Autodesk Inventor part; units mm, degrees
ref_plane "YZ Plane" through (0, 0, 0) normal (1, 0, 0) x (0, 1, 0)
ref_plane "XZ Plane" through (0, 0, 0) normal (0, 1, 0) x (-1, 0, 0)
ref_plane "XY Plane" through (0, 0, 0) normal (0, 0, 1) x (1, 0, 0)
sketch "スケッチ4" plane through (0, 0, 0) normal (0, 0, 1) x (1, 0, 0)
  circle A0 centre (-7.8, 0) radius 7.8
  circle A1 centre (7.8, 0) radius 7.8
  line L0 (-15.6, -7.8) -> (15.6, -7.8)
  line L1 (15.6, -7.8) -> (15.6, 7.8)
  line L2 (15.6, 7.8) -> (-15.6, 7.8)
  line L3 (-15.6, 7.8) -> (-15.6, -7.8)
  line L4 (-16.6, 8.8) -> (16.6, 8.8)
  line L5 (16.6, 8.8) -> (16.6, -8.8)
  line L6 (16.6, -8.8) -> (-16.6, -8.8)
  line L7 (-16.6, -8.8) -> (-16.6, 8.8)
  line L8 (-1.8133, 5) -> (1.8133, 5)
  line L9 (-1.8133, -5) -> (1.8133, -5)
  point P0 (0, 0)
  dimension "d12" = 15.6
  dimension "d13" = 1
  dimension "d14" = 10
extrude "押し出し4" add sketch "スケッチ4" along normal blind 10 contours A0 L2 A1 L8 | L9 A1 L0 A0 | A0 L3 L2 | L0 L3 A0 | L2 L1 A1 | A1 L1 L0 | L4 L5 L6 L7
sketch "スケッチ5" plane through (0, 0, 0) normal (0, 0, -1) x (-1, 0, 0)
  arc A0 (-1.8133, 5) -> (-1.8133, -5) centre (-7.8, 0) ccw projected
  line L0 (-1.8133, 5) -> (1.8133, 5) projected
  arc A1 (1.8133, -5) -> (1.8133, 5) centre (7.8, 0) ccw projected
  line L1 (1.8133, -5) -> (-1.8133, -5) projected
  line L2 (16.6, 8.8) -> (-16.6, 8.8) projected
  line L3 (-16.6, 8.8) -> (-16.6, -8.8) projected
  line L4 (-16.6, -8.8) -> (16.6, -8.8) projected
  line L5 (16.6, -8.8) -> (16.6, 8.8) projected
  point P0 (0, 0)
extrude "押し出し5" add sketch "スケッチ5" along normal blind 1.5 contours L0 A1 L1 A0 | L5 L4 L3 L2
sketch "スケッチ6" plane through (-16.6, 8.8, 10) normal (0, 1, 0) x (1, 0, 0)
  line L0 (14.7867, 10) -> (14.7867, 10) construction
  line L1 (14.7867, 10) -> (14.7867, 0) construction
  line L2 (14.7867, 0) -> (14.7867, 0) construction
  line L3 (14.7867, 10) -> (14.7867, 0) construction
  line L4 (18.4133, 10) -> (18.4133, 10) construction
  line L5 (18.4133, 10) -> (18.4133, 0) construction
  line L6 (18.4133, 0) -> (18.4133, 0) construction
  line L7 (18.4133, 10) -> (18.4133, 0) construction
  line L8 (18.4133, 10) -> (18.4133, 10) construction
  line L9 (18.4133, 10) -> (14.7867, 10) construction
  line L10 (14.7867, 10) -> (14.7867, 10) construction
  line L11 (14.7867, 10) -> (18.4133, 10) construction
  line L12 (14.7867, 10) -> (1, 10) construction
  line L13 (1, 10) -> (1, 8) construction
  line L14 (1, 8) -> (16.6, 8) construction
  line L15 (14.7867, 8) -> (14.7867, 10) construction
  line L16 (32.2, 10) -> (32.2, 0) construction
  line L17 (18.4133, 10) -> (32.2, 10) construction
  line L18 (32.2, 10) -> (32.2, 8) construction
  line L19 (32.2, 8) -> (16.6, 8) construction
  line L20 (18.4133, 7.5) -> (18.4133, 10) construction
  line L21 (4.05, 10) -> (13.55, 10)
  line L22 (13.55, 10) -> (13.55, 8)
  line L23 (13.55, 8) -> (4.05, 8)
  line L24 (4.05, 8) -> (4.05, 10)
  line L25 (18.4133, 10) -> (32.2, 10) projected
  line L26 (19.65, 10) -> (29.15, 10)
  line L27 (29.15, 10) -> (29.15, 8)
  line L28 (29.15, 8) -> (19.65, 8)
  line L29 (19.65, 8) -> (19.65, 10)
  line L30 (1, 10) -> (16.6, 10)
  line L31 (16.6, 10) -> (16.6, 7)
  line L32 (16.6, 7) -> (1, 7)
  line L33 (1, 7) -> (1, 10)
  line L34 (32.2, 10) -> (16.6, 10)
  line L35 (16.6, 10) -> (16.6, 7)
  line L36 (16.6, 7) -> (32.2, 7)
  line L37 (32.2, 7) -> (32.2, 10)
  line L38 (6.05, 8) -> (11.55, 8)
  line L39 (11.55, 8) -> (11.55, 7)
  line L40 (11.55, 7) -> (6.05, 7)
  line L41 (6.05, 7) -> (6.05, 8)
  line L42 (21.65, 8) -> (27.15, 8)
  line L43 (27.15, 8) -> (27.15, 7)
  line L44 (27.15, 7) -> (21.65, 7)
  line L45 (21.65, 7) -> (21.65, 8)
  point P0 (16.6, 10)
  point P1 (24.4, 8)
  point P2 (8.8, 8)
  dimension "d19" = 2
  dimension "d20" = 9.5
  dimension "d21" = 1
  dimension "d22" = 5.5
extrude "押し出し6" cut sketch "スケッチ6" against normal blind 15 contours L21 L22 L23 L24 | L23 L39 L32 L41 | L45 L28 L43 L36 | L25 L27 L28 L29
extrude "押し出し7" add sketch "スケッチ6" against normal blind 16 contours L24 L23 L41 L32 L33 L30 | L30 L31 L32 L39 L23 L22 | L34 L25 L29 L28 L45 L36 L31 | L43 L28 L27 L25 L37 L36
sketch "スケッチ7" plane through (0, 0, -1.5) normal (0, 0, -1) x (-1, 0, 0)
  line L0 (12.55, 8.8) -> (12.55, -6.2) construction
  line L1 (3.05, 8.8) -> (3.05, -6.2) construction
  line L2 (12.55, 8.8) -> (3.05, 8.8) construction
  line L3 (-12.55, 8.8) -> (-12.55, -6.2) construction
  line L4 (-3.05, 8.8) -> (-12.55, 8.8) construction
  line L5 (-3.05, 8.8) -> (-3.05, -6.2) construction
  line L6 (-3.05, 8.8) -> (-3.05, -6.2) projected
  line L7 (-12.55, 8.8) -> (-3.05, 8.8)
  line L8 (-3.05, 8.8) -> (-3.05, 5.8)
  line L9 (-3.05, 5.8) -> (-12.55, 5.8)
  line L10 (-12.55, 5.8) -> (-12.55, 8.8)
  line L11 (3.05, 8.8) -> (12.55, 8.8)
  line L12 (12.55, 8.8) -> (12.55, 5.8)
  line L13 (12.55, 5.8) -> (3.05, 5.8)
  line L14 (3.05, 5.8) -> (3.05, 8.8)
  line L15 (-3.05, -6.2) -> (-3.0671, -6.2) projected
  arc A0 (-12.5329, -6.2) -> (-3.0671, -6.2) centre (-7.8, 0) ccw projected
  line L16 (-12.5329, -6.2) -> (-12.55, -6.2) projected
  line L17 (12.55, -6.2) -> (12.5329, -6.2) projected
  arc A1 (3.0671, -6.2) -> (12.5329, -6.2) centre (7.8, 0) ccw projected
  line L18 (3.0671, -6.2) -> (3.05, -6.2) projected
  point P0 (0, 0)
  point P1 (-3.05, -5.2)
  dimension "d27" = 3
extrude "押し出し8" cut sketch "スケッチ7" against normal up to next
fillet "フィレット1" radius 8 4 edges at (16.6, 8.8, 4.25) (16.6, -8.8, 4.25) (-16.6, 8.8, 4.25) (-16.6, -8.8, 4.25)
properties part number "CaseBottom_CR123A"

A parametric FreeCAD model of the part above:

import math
import FreeCAD as App
import Part
import Sketcher
from FreeCAD import Vector


def edges_at(feature, points):
    """Names of the edges that pass closest to the given points."""
    edges = feature.Shape.Edges
    near = lambda p: min(range(len(edges)), key=lambda i: edges[i].distToShape(Part.Vertex(*p))[0])
    return sorted({f"Edge{near(p) + 1}" for p in points})


def add_polygon(sketch, points):
    """Adds a closed chain of lines whose ends are joined by coincident constraints."""
    first, n = sketch.GeometryCount, len(points)
    for a, b in zip(points, points[1:] + points[:1]):
        sketch.addGeometry(Part.LineSegment(App.Vector(*a, 0), App.Vector(*b, 0)), False)
    for i in range(n):
        sketch.addConstraint(Sketcher.Constraint("Coincident", first + i, 2, first + (i + 1) % n, 1))

doc = App.newDocument("Part")
body = doc.addObject("PartDesign::Body", "Body")

sketch1 = body.newObject("Sketcher::SketchObject", "Sketch")
sketch1.AttachmentSupport = (doc.getObject("XY_Plane"), [""])
sketch1.MapMode = "FlatFace"
add_polygon(sketch1, [(16.6, 8.8), (-16.6, 8.8), (-16.6, -8.8), (16.6, -8.8)])
sketch1.addGeometry(Part.LineSegment(Vector(-1.8, 5, 0), Vector(1.8, 5, 0)), False)
sketch1.addGeometry(Part.ArcOfCircle(Part.Circle(Vector(7.8, 0, 0), Vector(0, 0, 1), 7.8), math.radians(-140), math.radians(140)), False)
sketch1.addGeometry(Part.LineSegment(Vector(1.8, -5, 0), Vector(-1.8, -5, 0)), False)
sketch1.addGeometry(Part.ArcOfCircle(Part.Circle(Vector(-7.8, 0, 0), Vector(0, 0, 1), 7.8), math.radians(40), math.radians(320)), False)
sketch1.addConstraint([
    Sketcher.Constraint("Coincident", 4, 2, 5, 2),
    Sketcher.Constraint("Coincident", 5, 1, 6, 1),
    Sketcher.Constraint("Coincident", 6, 2, 7, 2),
    Sketcher.Constraint("Coincident", 7, 1, 4, 1),
    Sketcher.Constraint("Horizontal", 0),
    Sketcher.Constraint("Vertical", 1),
    Sketcher.Constraint("Horizontal", 2),
    Sketcher.Constraint("Vertical", 3),
    Sketcher.Constraint("Horizontal", 4),
    Sketcher.Constraint("Horizontal", 6),
    Sketcher.Constraint("Equal", 5, 7),
    Sketcher.Constraint("Symmetric", 5, 3, 7, 3, -1, 1),
    Sketcher.Constraint("Symmetric", 0, 2, 2, 2, -1, 1),
    Sketcher.Constraint("Symmetric", 4, 2, 5, 1, -1),
    Sketcher.Constraint("Radius", 5, 7.8),
    Sketcher.Constraint("DistanceY", 5, 1, 4, 2, 10.0),
    Sketcher.Constraint("DistanceX", 7, 3, 5, 3, 15.6),
    Sketcher.Constraint("DistanceX", 0, 2, 0, 1, 33.2),
    Sketcher.Constraint("DistanceY", 1, 2, 1, 1, 17.6),
])
pad1 = body.newObject("PartDesign::Pad", "Pad")
pad1.Profile = sketch1
pad1.Length = 10

sketch2 = body.newObject("Sketcher::SketchObject", "Sketch001")
sketch2.AttachmentSupport = (doc.getObject("XY_Plane"), [""])
sketch2.MapMode = "FlatFace"
add_polygon(sketch2, [(-17, -9), (-17, 9), (17, 9), (17, -9)])
sketch2.addConstraint([
    Sketcher.Constraint("Vertical", 0),
    Sketcher.Constraint("Horizontal", 1),
    Sketcher.Constraint("Vertical", 2),
    Sketcher.Constraint("Horizontal", 3),
    Sketcher.Constraint("Symmetric", 0, 2, 2, 2, -1, 1),
    Sketcher.Constraint("DistanceX", 1, 1, 1, 2, 33.2),
    Sketcher.Constraint("DistanceY", 0, 1, 0, 2, 17.6),
])
pad2 = body.newObject("PartDesign::Pad", "Pad001")
pad2.Profile = sketch2
pad2.Length = 1.5
pad2.Reversed = True

sketch3 = body.newObject("Sketcher::SketchObject", "Sketch002")
sketch3.AttachmentSupport = (doc.getObject("XZ_Plane"), [""])
sketch3.MapMode = "FlatFace"
sketch3.AttachmentOffset = App.Placement(Vector(0, 0, -8.8), App.Rotation())
add_polygon(sketch3, [(-3, 0), (-12.6, 0), (-12.6, 2), (-10.6, 2), (-10.6, 3), (-5, 3), (-5, 2), (-3, 2)])
add_polygon(sketch3, [(5, 2), (5, 3), (10.6, 3), (10.6, 2), (12.6, 2), (12.6, 0), (3, 0), (3, 2)])
sketch3.addConstraint([
    Sketcher.Constraint("Horizontal", 0),
    Sketcher.Constraint("Vertical", 1),
    Sketcher.Constraint("Horizontal", 2),
    Sketcher.Constraint("Vertical", 3),
    Sketcher.Constraint("Horizontal", 4),
    Sketcher.Constraint("Vertical", 5),
    Sketcher.Constraint("Horizontal", 6),
    Sketcher.Constraint("Vertical", 7),
    Sketcher.Constraint("Vertical", 8),
    Sketcher.Constraint("Horizontal", 9),
    Sketcher.Constraint("Vertical", 10),
    Sketcher.Constraint("Horizontal", 11),
    Sketcher.Constraint("Vertical", 12),
    Sketcher.Constraint("Horizontal", 13),
    Sketcher.Constraint("Vertical", 14),
    Sketcher.Constraint("Horizontal", 15),
    Sketcher.Constraint("Symmetric", 0, 2, 12, 2, -1, 1),
    Sketcher.Constraint("Symmetric", 4, 2, 8, 2, -2),
    Sketcher.Constraint("Symmetric", 2, 2, 10, 2, -2),
    Sketcher.Constraint("Symmetric", 7, 2, 13, 2, -2),
    Sketcher.Constraint("Horizontal", 2, 2, 5, 2),
    Sketcher.Constraint("Horizontal", 11, 2, 14, 2),
    Sketcher.Constraint("Equal", 2, 6),
    Sketcher.Constraint("Equal", 15, 1),
    Sketcher.Constraint("DistanceX", 2, 1, 2, 2, 2.0),
    Sketcher.Constraint("DistanceY", 3, 1, 3, 2, 1.0),
    Sketcher.Constraint("DistanceX", 0, 2, 0, 1, 9.5),
    Sketcher.Constraint("DistanceX", 6, 2, 8, 2, 8.1),
])
pocket1 = body.newObject("PartDesign::Pocket", "Pocket")
pocket1.Profile = sketch3
pocket1.Length = 15
pocket1.Reversed = True

sketch4 = body.newObject("Sketcher::SketchObject", "Sketch003")
sketch4.AttachmentSupport = (doc.getObject("XZ_Plane"), [""])
sketch4.MapMode = "FlatFace"
sketch4.AttachmentOffset = App.Placement(Vector(0, 0, -8.8), App.Rotation())
add_polygon(sketch4, [(-12.6, 2), (-12.6, 0), (-15.6, 0), (-15.6, 3), (-10.6, 3), (-10.6, 2)])
add_polygon(sketch4, [(-3, 0), (-3, 2), (-5, 2), (-5, 3), (5, 3), (5, 2), (3, 2), (3, 0)])
add_polygon(sketch4, [(10.6, 2), (10.6, 3), (15.6, 3), (15.6, 0), (12.6, 0), (12.6, 2)])
sketch4.addConstraint([
    Sketcher.Constraint("Vertical", 0),
    Sketcher.Constraint("Horizontal", 1),
    Sketcher.Constraint("Vertical", 2),
    Sketcher.Constraint("Horizontal", 3),
    Sketcher.Constraint("Vertical", 4),
    Sketcher.Constraint("Horizontal", 5),
    Sketcher.Constraint("Vertical", 6),
    Sketcher.Constraint("Horizontal", 7),
    Sketcher.Constraint("Vertical", 8),
    Sketcher.Constraint("Horizontal", 9),
    Sketcher.Constraint("Vertical", 10),
    Sketcher.Constraint("Horizontal", 11),
    Sketcher.Constraint("Vertical", 12),
    Sketcher.Constraint("Horizontal", 13),
    Sketcher.Constraint("Vertical", 14),
    Sketcher.Constraint("Horizontal", 15),
    Sketcher.Constraint("Vertical", 16),
    Sketcher.Constraint("Horizontal", 17),
    Sketcher.Constraint("Vertical", 18),
    Sketcher.Constraint("Horizontal", 19),
    Sketcher.Constraint("Symmetric", 12, 2, 13, 2, -1, 1),
    Sketcher.Constraint("Symmetric", 1, 2, 16, 2, -1, 1),
    Sketcher.Constraint("Symmetric", 7, 2, 10, 2, -2),
    Sketcher.Constraint("Symmetric", 3, 2, 14, 2, -2),
    Sketcher.Constraint("Symmetric", 0, 2, 17, 2, -2),
    Sketcher.Constraint("Horizontal", 5, 2, 6, 2),
    Sketcher.Constraint("Horizontal", 3, 2, 8, 2),
    Sketcher.Constraint("Horizontal", 11, 2, 18, 2),
    Sketcher.Constraint("Equal", 5, 7),
    Sketcher.Constraint("Equal", 19, 0),
    Sketcher.Constraint("DistanceX", 5, 2, 5, 1, 2.0),
    Sketcher.Constraint("DistanceY", 4, 2, 4, 1, 1.0),
    Sketcher.Constraint("DistanceX", 5, 2, 6, 2, 9.5),
    Sketcher.Constraint("DistanceX", 9, 1, 9, 2, 10.1),
    Sketcher.Constraint("DistanceX", 1, 2, 1, 1, 3.05),
])
pad3 = body.newObject("PartDesign::Pad", "Pad002")
pad3.Profile = sketch4
pad3.Length = 16

sketch5 = body.newObject("Sketcher::SketchObject", "Sketch004")
sketch5.AttachmentSupport = (doc.getObject("XY_Plane"), [""])
sketch5.MapMode = "FlatFace"
sketch5.AttachmentOffset = App.Placement(Vector(0, 0, -1.5), App.Rotation())
add_polygon(sketch5, [(3, 5.8), (3, 8.8), (12.6, 8.8), (12.6, 5.8)])
add_polygon(sketch5, [(-12.6, 8.8), (-3, 8.8), (-3, 5.8), (-12.6, 5.8)])
sketch5.addConstraint([
    Sketcher.Constraint("Vertical", 0),
    Sketcher.Constraint("Horizontal", 1),
    Sketcher.Constraint("Vertical", 2),
    Sketcher.Constraint("Horizontal", 3),
    Sketcher.Constraint("Horizontal", 4),
    Sketcher.Constraint("Vertical", 5),
    Sketcher.Constraint("Horizontal", 6),
    Sketcher.Constraint("Vertical", 7),
    Sketcher.Constraint("Symmetric", 0, 2, 4, 2, -2),
    Sketcher.Constraint("Symmetric", 2, 2, 6, 2, -2),
    Sketcher.Constraint("DistanceY", 0, 1, 0, 2, 3.0),
    Sketcher.Constraint("DistanceX", 1, 1, 1, 2, 9.5),
    Sketcher.Constraint("DistanceY", -1, 1, 0, 2, 8.8),
    Sketcher.Constraint("DistanceX", 4, 2, 0, 2, 6.1),
])
pocket2 = body.newObject("PartDesign::Pocket", "Pocket001")
pocket2.Profile = sketch5
pocket2.Length = 1.5
pocket2.Reversed = True
doc.recompute()

fillet = body.newObject("PartDesign::Fillet", "Fillet")
fillet.Base = (pocket2, edges_at(pocket2, [
    (16.6, 8.8, 4.25),
    (16.6, -8.8, 4.25),
    (-16.6, 8.8, 4.25),
    (-16.6, -8.8, 4.25),
]))
fillet.Radius = 8

doc.recompute()
